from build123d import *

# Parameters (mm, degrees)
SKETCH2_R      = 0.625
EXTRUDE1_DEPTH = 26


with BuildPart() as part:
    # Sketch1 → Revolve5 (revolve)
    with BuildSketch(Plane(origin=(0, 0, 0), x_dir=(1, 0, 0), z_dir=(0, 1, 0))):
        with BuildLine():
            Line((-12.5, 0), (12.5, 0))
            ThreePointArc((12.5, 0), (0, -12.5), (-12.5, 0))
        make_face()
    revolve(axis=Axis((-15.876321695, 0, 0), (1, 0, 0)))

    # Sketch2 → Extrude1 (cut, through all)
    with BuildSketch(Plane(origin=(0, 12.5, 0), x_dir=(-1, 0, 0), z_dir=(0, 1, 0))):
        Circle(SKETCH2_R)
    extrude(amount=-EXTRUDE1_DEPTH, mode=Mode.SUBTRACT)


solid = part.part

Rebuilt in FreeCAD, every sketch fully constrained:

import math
import FreeCAD as App
import Part
import Sketcher

V = App.Vector
Q = App.Units.Quantity

doc = App.newDocument("Part")
body = doc.addObject("PartDesign::Body", "Body")

# Sketch on XZ plane
sketch1 = doc.addObject("Sketcher::SketchObject", "Sketch")
body.addObject(sketch1)
sketch1.AttachmentSupport = (doc.XZ_Plane, [""])
sketch1.MapMode = "FlatFace"
sketch1.addGeometry(Part.LineSegment(V(12, 0, 0), V(-12, 0, 0)), False)
sketch1.addGeometry(Part.ArcOfCircle(Part.Circle(V(0, 0, 0), V(0, 0, 1), 12), math.radians(0), math.radians(180)), False)
sketch1.addConstraint(Sketcher.Constraint("Coincident", 0, 1, 1, 1))
sketch1.addConstraint(Sketcher.Constraint("Coincident", 1, 2, 0, 2))
sketch1.addConstraint(Sketcher.Constraint("Horizontal", 0))
sketch1.addConstraint(Sketcher.Constraint("Coincident", 1, 3, -1, 1))
sketch1.addConstraint(Sketcher.Constraint("PointOnObject", 0, 1, -1))
sketch1.addConstraint(Sketcher.Constraint("Radius", 1, Q("12.5 mm")))
revolution = doc.addObject("PartDesign::Revolution", "Revolution")
body.addObject(revolution)
revolution.Profile = sketch1
revolution.ReferenceAxis = (sketch1, ["H_Axis"])
revolution.Angle = 360

# Sketch on XZ plane
sketch2 = doc.addObject("Sketcher::SketchObject", "Sketch001")
body.addObject(sketch2)
sketch2.AttachmentSupport = (doc.XZ_Plane, [""])
sketch2.MapMode = "FlatFace"
sketch2.AttachmentOffset = App.Placement(V(0, 0, -12.5), App.Rotation())
sketch2.addGeometry(Part.Circle(V(0, 0, 0), V(0, 0, 1), 0.6), False)
sketch2.addConstraint(Sketcher.Constraint("Coincident", 0, 3, -1, 1))
sketch2.addConstraint(Sketcher.Constraint("Diameter", 0, Q("1.25 mm")))
pocket1 = doc.addObject("PartDesign::Pocket", "Pocket")
body.addObject(pocket1)
pocket1.Profile = sketch2
pocket1.Type = "ThroughAll"
pocket1.Reversed = True

doc.recompute()
